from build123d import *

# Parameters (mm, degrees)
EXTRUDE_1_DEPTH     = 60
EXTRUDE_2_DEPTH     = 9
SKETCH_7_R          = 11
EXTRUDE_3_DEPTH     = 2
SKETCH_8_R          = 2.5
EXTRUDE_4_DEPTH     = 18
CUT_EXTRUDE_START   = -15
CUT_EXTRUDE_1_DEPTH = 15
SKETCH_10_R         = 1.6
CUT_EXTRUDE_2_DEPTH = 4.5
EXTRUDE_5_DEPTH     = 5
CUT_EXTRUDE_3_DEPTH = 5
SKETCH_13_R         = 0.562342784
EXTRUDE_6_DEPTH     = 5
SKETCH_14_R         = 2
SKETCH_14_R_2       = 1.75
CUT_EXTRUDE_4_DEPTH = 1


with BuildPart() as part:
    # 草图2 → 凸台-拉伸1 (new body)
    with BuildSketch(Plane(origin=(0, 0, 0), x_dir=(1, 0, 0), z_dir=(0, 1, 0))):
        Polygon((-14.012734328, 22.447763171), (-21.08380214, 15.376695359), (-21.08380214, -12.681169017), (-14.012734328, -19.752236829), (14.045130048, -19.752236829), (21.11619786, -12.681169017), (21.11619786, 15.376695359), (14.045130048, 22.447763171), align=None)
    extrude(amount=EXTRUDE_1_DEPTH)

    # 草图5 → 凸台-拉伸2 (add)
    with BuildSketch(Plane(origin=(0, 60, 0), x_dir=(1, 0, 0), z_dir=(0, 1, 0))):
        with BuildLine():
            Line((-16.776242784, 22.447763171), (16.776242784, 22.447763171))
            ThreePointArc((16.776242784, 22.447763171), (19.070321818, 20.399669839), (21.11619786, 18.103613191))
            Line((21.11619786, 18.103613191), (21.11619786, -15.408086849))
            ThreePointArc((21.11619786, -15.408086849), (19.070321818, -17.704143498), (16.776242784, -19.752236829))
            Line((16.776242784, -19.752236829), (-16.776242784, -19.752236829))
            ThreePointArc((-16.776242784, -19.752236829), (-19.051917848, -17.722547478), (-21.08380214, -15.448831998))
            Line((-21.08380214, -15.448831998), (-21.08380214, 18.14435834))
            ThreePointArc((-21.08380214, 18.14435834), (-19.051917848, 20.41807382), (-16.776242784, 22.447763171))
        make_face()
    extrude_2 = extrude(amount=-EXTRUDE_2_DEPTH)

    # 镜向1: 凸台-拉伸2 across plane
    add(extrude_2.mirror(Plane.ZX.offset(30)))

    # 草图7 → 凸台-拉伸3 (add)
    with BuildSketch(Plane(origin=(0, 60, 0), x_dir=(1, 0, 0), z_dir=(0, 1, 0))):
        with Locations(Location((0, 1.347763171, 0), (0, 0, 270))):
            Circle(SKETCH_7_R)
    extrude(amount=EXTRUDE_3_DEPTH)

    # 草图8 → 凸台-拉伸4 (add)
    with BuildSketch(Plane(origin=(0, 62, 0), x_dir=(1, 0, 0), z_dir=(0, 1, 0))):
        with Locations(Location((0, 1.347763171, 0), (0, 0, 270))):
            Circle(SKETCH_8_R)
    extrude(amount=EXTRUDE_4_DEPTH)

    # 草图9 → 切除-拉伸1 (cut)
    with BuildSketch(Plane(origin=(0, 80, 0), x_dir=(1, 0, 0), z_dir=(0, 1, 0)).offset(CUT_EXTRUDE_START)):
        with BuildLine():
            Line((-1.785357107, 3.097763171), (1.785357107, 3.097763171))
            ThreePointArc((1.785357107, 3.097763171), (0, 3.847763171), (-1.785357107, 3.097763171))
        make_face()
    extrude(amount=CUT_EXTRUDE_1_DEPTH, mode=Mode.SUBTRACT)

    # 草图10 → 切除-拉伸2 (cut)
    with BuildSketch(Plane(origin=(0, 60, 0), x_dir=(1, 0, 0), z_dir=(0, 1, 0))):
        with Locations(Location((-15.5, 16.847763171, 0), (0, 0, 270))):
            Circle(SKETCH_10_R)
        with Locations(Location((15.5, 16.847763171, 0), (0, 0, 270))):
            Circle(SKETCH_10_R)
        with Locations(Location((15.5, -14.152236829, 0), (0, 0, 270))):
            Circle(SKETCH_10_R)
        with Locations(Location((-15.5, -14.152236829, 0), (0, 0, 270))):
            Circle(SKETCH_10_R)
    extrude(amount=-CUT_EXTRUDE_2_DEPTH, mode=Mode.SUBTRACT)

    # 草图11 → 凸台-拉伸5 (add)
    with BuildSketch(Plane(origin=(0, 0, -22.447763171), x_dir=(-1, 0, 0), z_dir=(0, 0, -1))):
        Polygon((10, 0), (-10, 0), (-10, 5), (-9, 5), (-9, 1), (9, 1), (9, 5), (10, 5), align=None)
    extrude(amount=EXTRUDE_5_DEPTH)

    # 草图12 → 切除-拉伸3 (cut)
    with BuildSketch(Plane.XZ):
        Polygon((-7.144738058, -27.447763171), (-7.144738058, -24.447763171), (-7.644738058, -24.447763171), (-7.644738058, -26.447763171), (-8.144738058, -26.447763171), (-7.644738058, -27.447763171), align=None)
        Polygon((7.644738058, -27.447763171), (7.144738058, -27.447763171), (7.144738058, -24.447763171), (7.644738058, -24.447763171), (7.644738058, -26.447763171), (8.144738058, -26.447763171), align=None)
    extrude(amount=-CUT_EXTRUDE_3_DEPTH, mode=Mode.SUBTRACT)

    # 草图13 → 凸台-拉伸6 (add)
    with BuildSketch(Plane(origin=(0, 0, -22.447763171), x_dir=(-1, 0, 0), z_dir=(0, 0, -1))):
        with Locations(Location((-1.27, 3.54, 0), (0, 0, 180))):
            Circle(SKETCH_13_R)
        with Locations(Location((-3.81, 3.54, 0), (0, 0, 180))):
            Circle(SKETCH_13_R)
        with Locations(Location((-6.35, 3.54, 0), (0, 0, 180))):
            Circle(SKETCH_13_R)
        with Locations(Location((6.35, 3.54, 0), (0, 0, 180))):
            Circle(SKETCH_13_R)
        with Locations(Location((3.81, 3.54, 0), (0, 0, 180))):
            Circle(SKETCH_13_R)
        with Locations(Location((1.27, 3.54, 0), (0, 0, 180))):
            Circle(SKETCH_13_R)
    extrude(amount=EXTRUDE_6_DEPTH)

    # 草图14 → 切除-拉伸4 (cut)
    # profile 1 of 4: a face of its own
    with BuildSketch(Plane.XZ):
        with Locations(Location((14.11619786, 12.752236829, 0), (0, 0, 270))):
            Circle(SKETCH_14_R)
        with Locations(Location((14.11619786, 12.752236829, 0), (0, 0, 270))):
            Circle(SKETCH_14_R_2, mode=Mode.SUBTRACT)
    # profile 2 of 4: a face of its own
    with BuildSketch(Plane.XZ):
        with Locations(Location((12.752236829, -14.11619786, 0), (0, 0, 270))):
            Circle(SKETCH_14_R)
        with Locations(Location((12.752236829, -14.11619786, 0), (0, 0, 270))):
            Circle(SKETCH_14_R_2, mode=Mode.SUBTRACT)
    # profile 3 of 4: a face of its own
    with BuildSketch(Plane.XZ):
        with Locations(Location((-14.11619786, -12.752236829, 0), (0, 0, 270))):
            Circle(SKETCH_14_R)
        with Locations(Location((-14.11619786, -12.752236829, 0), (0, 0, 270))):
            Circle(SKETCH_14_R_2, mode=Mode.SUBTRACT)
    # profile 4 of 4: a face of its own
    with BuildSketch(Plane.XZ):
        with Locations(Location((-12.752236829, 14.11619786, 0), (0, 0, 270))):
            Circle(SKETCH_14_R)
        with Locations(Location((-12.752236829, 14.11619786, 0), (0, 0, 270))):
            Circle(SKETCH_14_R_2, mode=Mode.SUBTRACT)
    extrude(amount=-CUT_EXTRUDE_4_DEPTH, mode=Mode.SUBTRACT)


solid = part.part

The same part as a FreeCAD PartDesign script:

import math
import FreeCAD as App
import Part
import Sketcher
Q = App.Units.Quantity


def add_polygon(sketch, points):
    """Adds a closed chain of lines whose ends are joined by coincident constraints."""
    first, n = sketch.GeometryCount, len(points)
    for a, b in zip(points, points[1:] + points[:1]):
        sketch.addGeometry(Part.LineSegment(App.Vector(*a, 0), App.Vector(*b, 0)), False)
    for i in range(n):
        sketch.addConstraint(Sketcher.Constraint("Coincident", first + i, 2, first + (i + 1) % n, 1))

doc = App.newDocument("Part")
body = doc.addObject("PartDesign::Body", "Body")

sketch1 = doc.addObject("Sketcher::SketchObject", "Sketch")
body.addObject(sketch1)
sketch1.AttachmentSupport = (doc.XZ_Plane, [""])
sketch1.MapMode = "FlatFace"
add_polygon(sketch1, [(-14, -22), (-21, -15), (-21, 13), (-14, 20), (14, 20), (21, 13), (21, -15), (14, -22)])
sketch1.addConstraint(Sketcher.Constraint("Vertical", 1))
sketch1.addConstraint(Sketcher.Constraint("Horizontal", 3))
sketch1.addConstraint(Sketcher.Constraint("Vertical", 5))
sketch1.addConstraint(Sketcher.Constraint("Horizontal", 7))
sketch1.addConstraint(Sketcher.Constraint("Perpendicular", 0, 2))
sketch1.addConstraint(Sketcher.Constraint("Perpendicular", 2, 4))
sketch1.addConstraint(Sketcher.Constraint("Perpendicular", 4, 6))
sketch1.addConstraint(Sketcher.Constraint("Horizontal", 1, 2, 4, 2))
sketch1.addConstraint(Sketcher.Constraint("Horizontal", 0, 2, 5, 2))
sketch1.addConstraint(Sketcher.Constraint("Vertical", 3, 2, 6, 2))
sketch1.addConstraint(Sketcher.Constraint("Vertical", 2, 2, 7, 2))
sketch1.addConstraint(Sketcher.Constraint("Equal", 7, 1))
sketch1.addConstraint(Sketcher.Constraint("Distance", 0, Q("10 mm")))
sketch1.addConstraint(Sketcher.Constraint("DistanceX", 1, 2, 4, 2, Q("42.2 mm")))
sketch1.addConstraint(Sketcher.Constraint("DistanceY", -1, 1, 1, 2, Q("12.681169 mm")))
sketch1.addConstraint(Sketcher.Constraint("DistanceX", -1, 1, 3, 2, Q("14.04513 mm")))
pad1 = doc.addObject("PartDesign::Pad", "Pad")
body.addObject(pad1)
pad1.Profile = sketch1
pad1.Length = 60
pad1.Reversed = True

sketch2 = doc.addObject("Sketcher::SketchObject", "Sketch001")
body.addObject(sketch2)
sketch2.AttachmentSupport = (doc.XZ_Plane, [""])
sketch2.MapMode = "FlatFace"
sketch2.AttachmentOffset = App.Placement(App.Vector(0, 0, -60), App.Rotation())
sketch2.addGeometry(Part.LineSegment(App.Vector(17, -22, 0), App.Vector(-17, -22, 0)), False)
sketch2.addGeometry(Part.ArcOfCircle(Part.Circle(App.Vector(0, -1, 0), App.Vector(0, 0, 1), 27), math.radians(-141.46), math.radians(-128.49)), False)
sketch2.addGeometry(Part.LineSegment(App.Vector(-21, -18, 0), App.Vector(-21, 15, 0)), False)
sketch2.addGeometry(Part.ArcOfCircle(Part.Circle(App.Vector(0, -1, 0), App.Vector(0, 0, 1), 27), math.radians(128.49), math.radians(141.46)), False)
sketch2.addGeometry(Part.LineSegment(App.Vector(-17, 20, 0), App.Vector(17, 20, 0)), False)
sketch2.addGeometry(Part.ArcOfCircle(Part.Circle(App.Vector(0, -1, 0), App.Vector(0, 0, 1), 27), math.radians(38.43), math.radians(51.51)), False)
sketch2.addGeometry(Part.LineSegment(App.Vector(21, 15, 0), App.Vector(21, -18, 0)), False)
sketch2.addGeometry(Part.ArcOfCircle(Part.Circle(App.Vector(0, -1, 0), App.Vector(0, 0, 1), 27), math.radians(-51.51), math.radians(-38.43)), False)
sketch2.addConstraint(Sketcher.Constraint("Coincident", 0, 2, 1, 2))
sketch2.addConstraint(Sketcher.Constraint("Coincident", 1, 1, 2, 1))
sketch2.addConstraint(Sketcher.Constraint("Coincident", 2, 2, 3, 2))
sketch2.addConstraint(Sketcher.Constraint("Coincident", 3, 1, 4, 1))
sketch2.addConstraint(Sketcher.Constraint("Coincident", 4, 2, 5, 2))
sketch2.addConstraint(Sketcher.Constraint("Coincident", 5, 1, 6, 1))
sketch2.addConstraint(Sketcher.Constraint("Coincident", 6, 2, 7, 2))
sketch2.addConstraint(Sketcher.Constraint("Coincident", 7, 1, 0, 1))
sketch2.addConstraint(Sketcher.Constraint("Horizontal", 0))
sketch2.addConstraint(Sketcher.Constraint("Vertical", 2))
sketch2.addConstraint(Sketcher.Constraint("Horizontal", 4))
sketch2.addConstraint(Sketcher.Constraint("Vertical", 6))
sketch2.addConstraint(Sketcher.Constraint("Coincident", 3, 3, 1, 3))
sketch2.addConstraint(Sketcher.Constraint("Coincident", 5, 3, 1, 3))
sketch2.addConstraint(Sketcher.Constraint("Coincident", 7, 3, 1, 3))
sketch2.addConstraint(Sketcher.Constraint("Equal", 1, 3))
sketch2.addConstraint(Sketcher.Constraint("Equal", 3, 5))
sketch2.addConstraint(Sketcher.Constraint("Equal", 5, 7))
sketch2.addConstraint(Sketcher.Constraint("PointOnObject", 1, 3, -2))
sketch2.addConstraint(Sketcher.Constraint("Vertical", 0, 2, 3, 1))
sketch2.addConstraint(Sketcher.Constraint("DistanceY", 0, 2, 3, 3, Q("21.1 mm")))
sketch2.addConstraint(Sketcher.Constraint("Radius", 1, Q("26.956489 mm")))
sketch2.addConstraint(Sketcher.Constraint("DistanceY", 6, 2, 6, 1, Q("33.5117 mm")))
sketch2.addConstraint(Sketcher.Constraint("DistanceY", 2, 1, 2, 2, Q("33.59319 mm")))
sketch2.addConstraint(Sketcher.Constraint("DistanceY", 1, 1, -1, 1, Q("18.144358 mm")))
pad2 = doc.addObject("PartDesign::Pad", "Pad001")
body.addObject(pad2)
pad2.Profile = sketch2
pad2.Length = 9
doc.recompute()

datumplane = doc.addObject("PartDesign::Plane", "DatumPlane")
body.addObject(datumplane)
datumplane.AttachmentSupport = (doc.XZ_Plane, [""])
datumplane.MapMode = "FlatFace"
datumplane.AttachmentOffset = App.Placement(App.Vector(0, 0, -30), App.Rotation())
mirrored = doc.addObject("PartDesign::Mirrored", "Mirrored")
body.addObject(mirrored)
mirrored.Originals = [pad2]
mirrored.MirrorPlane = (datumplane, [""])
body.Tip = mirrored

sketch3 = doc.addObject("Sketcher::SketchObject", "Sketch002")
body.addObject(sketch3)
sketch3.AttachmentSupport = (doc.XZ_Plane, [""])
sketch3.MapMode = "FlatFace"
sketch3.AttachmentOffset = App.Placement(App.Vector(0, 0, -60), App.Rotation())
sketch3.addGeometry(Part.Circle(App.Vector(0, -1, 0), App.Vector(0, 0, 1), 11), False)
sketch3.addConstraint(Sketcher.Constraint("PointOnObject", 0, 3, -2))
sketch3.addConstraint(Sketcher.Constraint("Diameter", 0, Q("22 mm")))
sketch3.addConstraint(Sketcher.Constraint("DistanceY", 0, 3, -1, 1, Q("1.347763 mm")))
pad3 = doc.addObject("PartDesign::Pad", "Pad002")
body.addObject(pad3)
pad3.Profile = sketch3
pad3.Length = 2
pad3.Reversed = True

sketch4 = doc.addObject("Sketcher::SketchObject", "Sketch003")
body.addObject(sketch4)
sketch4.AttachmentSupport = (doc.XZ_Plane, [""])
sketch4.MapMode = "FlatFace"
sketch4.AttachmentOffset = App.Placement(App.Vector(0, 0, -62), App.Rotation())
sketch4.addGeometry(Part.Circle(App.Vector(0, -1.3, 0), App.Vector(0, 0, 1), 2.5), False)
sketch4.addConstraint(Sketcher.Constraint("PointOnObject", 0, 3, -2))
sketch4.addConstraint(Sketcher.Constraint("Diameter", 0, Q("5 mm")))
sketch4.addConstraint(Sketcher.Constraint("DistanceY", 0, 3, -1, 1, Q("1.347763 mm")))
pad4 = doc.addObject("PartDesign::Pad", "Pad003")
body.addObject(pad4)
pad4.Profile = sketch4
pad4.Length = 18
pad4.Reversed = True

sketch5 = doc.addObject("Sketcher::SketchObject", "Sketch004")
body.addObject(sketch5)
sketch5.AttachmentSupport = (doc.XZ_Plane, [""])
sketch5.MapMode = "FlatFace"
sketch5.AttachmentOffset = App.Placement(App.Vector(0, 0, -65), App.Rotation())
sketch5.addGeometry(Part.LineSegment(App.Vector(-1.8, -3.1, 0), App.Vector(1.8, -3.1, 0)), False)
sketch5.addGeometry(Part.ArcOfCircle(Part.Circle(App.Vector(0, -1.3, 0), App.Vector(0, 0, 1), 2.5), math.radians(-136), math.radians(-44)), False)
sketch5.addConstraint(Sketcher.Constraint("Coincident", 0, 1, 1, 1))
sketch5.addConstraint(Sketcher.Constraint("Coincident", 1, 2, 0, 2))
sketch5.addConstraint(Sketcher.Constraint("Horizontal", 0))
sketch5.addConstraint(Sketcher.Constraint("PointOnObject", 1, 3, -2))
sketch5.addConstraint(Sketcher.Constraint("Radius", 1, Q("2.5 mm")))
sketch5.addConstraint(Sketcher.Constraint("DistanceY", 0, 1, 1, 3, Q("1.75 mm")))
sketch5.addConstraint(Sketcher.Constraint("DistanceY", 1, 3, -1, 1, Q("1.347763 mm")))
pocket1 = doc.addObject("PartDesign::Pocket", "Pocket")
body.addObject(pocket1)
pocket1.Profile = sketch5
pocket1.Length = 15

sketch6 = doc.addObject("Sketcher::SketchObject", "Sketch005")
body.addObject(sketch6)
sketch6.AttachmentSupport = (doc.XZ_Plane, [""])
sketch6.MapMode = "FlatFace"
sketch6.AttachmentOffset = App.Placement(App.Vector(0, 0, -60), App.Rotation())
sketch6.addGeometry(Part.Circle(App.Vector(-15.5, -16.8, 0), App.Vector(0, 0, 1), 1.6), False)
sketch6.addGeometry(Part.Circle(App.Vector(15.5, -16.8, 0), App.Vector(0, 0, 1), 1.6), False)
sketch6.addGeometry(Part.Circle(App.Vector(15.5, 14.2, 0), App.Vector(0, 0, 1), 1.6), False)
sketch6.addGeometry(Part.Circle(App.Vector(-15.5, 14.2, 0), App.Vector(0, 0, 1), 1.6), False)
sketch6.addConstraint(Sketcher.Constraint("Equal", 0, 1))
sketch6.addConstraint(Sketcher.Constraint("Equal", 1, 2))
sketch6.addConstraint(Sketcher.Constraint("Equal", 2, 3))
sketch6.addConstraint(Sketcher.Constraint("Symmetric", 0, 3, 1, 3, -2))
sketch6.addConstraint(Sketcher.Constraint("Symmetric", 2, 3, 3, 3, -2))
sketch6.addConstraint(Sketcher.Constraint("Vertical", 1, 3, 2, 3))
sketch6.addConstraint(Sketcher.Constraint("Diameter", 0, Q("3.2 mm")))
sketch6.addConstraint(Sketcher.Constraint("DistanceX", 0, 3, 1, 3, Q("31 mm")))
sketch6.addConstraint(Sketcher.Constraint("DistanceY", 1, 3, 2, 3, Q("31 mm")))
sketch6.addConstraint(Sketcher.Constraint("DistanceY", 0, 3, -1, 1, Q("16.847763 mm")))
pocket2 = doc.addObject("PartDesign::Pocket", "Pocket001")
body.addObject(pocket2)
pocket2.Profile = sketch6
pocket2.Length = 4.5
pocket2.Reversed = True

sketch7 = doc.addObject("Sketcher::SketchObject", "Sketch006")
body.addObject(sketch7)
sketch7.AttachmentSupport = (doc.XY_Plane, [""])
sketch7.MapMode = "FlatFace"
sketch7.AttachmentOffset = App.Placement(App.Vector(0, 0, -22.447763), App.Rotation())
add_polygon(sketch7, [(10, 0), (-10, 0), (-10, 5), (-9, 5), (-9, 1), (9, 1), (9, 5), (10, 5)])
sketch7.addConstraint(Sketcher.Constraint("Horizontal", 0))
sketch7.addConstraint(Sketcher.Constraint("Vertical", 1))
sketch7.addConstraint(Sketcher.Constraint("Horizontal", 2))
sketch7.addConstraint(Sketcher.Constraint("Vertical", 3))
sketch7.addConstraint(Sketcher.Constraint("Horizontal", 4))
sketch7.addConstraint(Sketcher.Constraint("Vertical", 5))
sketch7.addConstraint(Sketcher.Constraint("Horizontal", 6))
sketch7.addConstraint(Sketcher.Constraint("Vertical", 7))
sketch7.addConstraint(Sketcher.Constraint("Symmetric", 0, 2, 7, 2, -1, 1))
sketch7.addConstraint(Sketcher.Constraint("Symmetric", 2, 2, 5, 2, -2))
sketch7.addConstraint(Sketcher.Constraint("DistanceX", 0, 2, 0, 1, Q("20 mm")))
sketch7.addConstraint(Sketcher.Constraint("DistanceX", 2, 1, 2, 2, Q("1 mm")))
sketch7.addConstraint(Sketcher.Constraint("DistanceY", 1, 1, 1, 2, Q("5 mm")))
sketch7.addConstraint(Sketcher.Constraint("DistanceY", 3, 2, 3, 1, Q("4 mm")))
pad5 = doc.addObject("PartDesign::Pad", "Pad004")
body.addObject(pad5)
pad5.Profile = sketch7
pad5.Length = 5
pad5.Reversed = True

sketch8 = doc.addObject("Sketcher::SketchObject", "Sketch007")
body.addObject(sketch8)
sketch8.AttachmentSupport = (doc.XZ_Plane, [""])
sketch8.MapMode = "FlatFace"
add_polygon(sketch8, [(-7.1, -27.4), (-7.1, -24.4), (-7.6, -24.4), (-7.6, -26.4), (-8.1, -26.4), (-7.6, -27.4)])
add_polygon(sketch8, [(7.1, -27.4), (7.6, -27.4), (8.1, -26.4), (7.6, -26.4), (7.6, -24.4), (7.1, -24.4)])
sketch8.addConstraint(Sketcher.Constraint("Vertical", 0))
sketch8.addConstraint(Sketcher.Constraint("Horizontal", 1))
sketch8.addConstraint(Sketcher.Constraint("Vertical", 2))
sketch8.addConstraint(Sketcher.Constraint("Horizontal", 3))
sketch8.addConstraint(Sketcher.Constraint("Horizontal", 5))
sketch8.addConstraint(Sketcher.Constraint("Horizontal", 6))
sketch8.addConstraint(Sketcher.Constraint("Horizontal", 8))
sketch8.addConstraint(Sketcher.Constraint("Vertical", 9))
sketch8.addConstraint(Sketcher.Constraint("Horizontal", 10))
sketch8.addConstraint(Sketcher.Constraint("Vertical", 11))
sketch8.addConstraint(Sketcher.Constraint("Symmetric", 4, 2, 6, 2, -2))
sketch8.addConstraint(Sketcher.Constraint("Symmetric", 3, 2, 7, 2, -2))
sketch8.addConstraint(Sketcher.Constraint("Symmetric", 1, 2, 9, 2, -2))
sketch8.addConstraint(Sketcher.Constraint("Vertical", 2, 2, 4, 2))
sketch8.addConstraint(Sketcher.Constraint("Equal", 1, 3))
sketch8.addConstraint(Sketcher.Constraint("Equal", 5, 6))
sketch8.addConstraint(Sketcher.Constraint("DistanceY", 0, 1, 0, 2, Q("3 mm")))
sketch8.addConstraint(Sketcher.Constraint("DistanceY", 2, 2, 2, 1, Q("2 mm")))
sketch8.addConstraint(Sketcher.Constraint("DistanceX", 1, 2, 1, 1, Q("0.5 mm")))
sketch8.addConstraint(Sketcher.Constraint("DistanceX", 0, 2, -1, 1, Q("7.144738 mm")))
sketch8.addConstraint(Sketcher.Constraint("DistanceY", 0, 2, -1, 1, Q("24.447763 mm")))
pocket3 = doc.addObject("PartDesign::Pocket", "Pocket002")
body.addObject(pocket3)
pocket3.Profile = sketch8
pocket3.Length = 5

sketch9 = doc.addObject("Sketcher::SketchObject", "Sketch008")
body.addObject(sketch9)
sketch9.AttachmentSupport = (doc.XY_Plane, [""])
sketch9.MapMode = "FlatFace"
sketch9.AttachmentOffset = App.Placement(App.Vector(0, 0, -22.447763), App.Rotation())
sketch9.addGeometry(Part.Circle(App.Vector(1.3, 3.5, 0), App.Vector(0, 0, 1), 0.6), False)
sketch9.addGeometry(Part.Circle(App.Vector(3.8, 3.5, 0), App.Vector(0, 0, 1), 0.6), False)
sketch9.addGeometry(Part.Circle(App.Vector(6.3, 3.5, 0), App.Vector(0, 0, 1), 0.6), False)
sketch9.addGeometry(Part.Circle(App.Vector(-6.3, 3.5, 0), App.Vector(0, 0, 1), 0.6), False)
sketch9.addGeometry(Part.Circle(App.Vector(-3.8, 3.5, 0), App.Vector(0, 0, 1), 0.6), False)
sketch9.addGeometry(Part.Circle(App.Vector(-1.3, 3.5, 0), App.Vector(0, 0, 1), 0.6), False)
sketch9.addConstraint(Sketcher.Constraint("Equal", 0, 1))
sketch9.addConstraint(Sketcher.Constraint("Equal", 1, 2))
sketch9.addConstraint(Sketcher.Constraint("Equal", 2, 3))
sketch9.addConstraint(Sketcher.Constraint("Equal", 3, 4))
sketch9.addConstraint(Sketcher.Constraint("Equal", 4, 5))
sketch9.addConstraint(Sketcher.Constraint("Symmetric", 2, 3, 3, 3, -2))
sketch9.addConstraint(Sketcher.Constraint("Symmetric", 1, 3, 4, 3, -2))
sketch9.addConstraint(Sketcher.Constraint("Symmetric", 0, 3, 5, 3, -2))
sketch9.addConstraint(Sketcher.Constraint("Horizontal", 0, 3, 1, 3))
sketch9.addConstraint(Sketcher.Constraint("Horizontal", 1, 3, 2, 3))
sketch9.addConstraint(Sketcher.Constraint("DistanceX", 3, 3, 2, 3, Q("12.7 mm")))
sketch9.addConstraint(Sketcher.Constraint("DistanceX", -1, 1, 0, 3, Q("1.27 mm")))
sketch9.addConstraint(Sketcher.Constraint("DistanceY", -1, 1, 0, 3, Q("3.54 mm")))
sketch9.addConstraint(Sketcher.Constraint("DistanceX", -1, 1, 1, 3, Q("3.81 mm")))
sketch9.addConstraint(Sketcher.Constraint("Diameter", 0, Q("1.124686 mm")))
pad6 = doc.addObject("PartDesign::Pad", "Pad005")
body.addObject(pad6)
pad6.Profile = sketch9
pad6.Length = 5
pad6.Reversed = True

sketch10 = doc.addObject("Sketcher::SketchObject", "Sketch009")
body.addObject(sketch10)
sketch10.AttachmentSupport = (doc.XZ_Plane, [""])
sketch10.MapMode = "FlatFace"
sketch10.addGeometry(Part.Circle(App.Vector(14.1, 12.8, 0), App.Vector(0, 0, 1), 2), False)
sketch10.addGeometry(Part.Circle(App.Vector(14.1, 12.8, 0), App.Vector(0, 0, 1), 1.8), False)
sketch10.addGeometry(Part.Circle(App.Vector(12.8, -14.1, 0), App.Vector(0, 0, 1), 2), False)
sketch10.addGeometry(Part.Circle(App.Vector(12.8, -14.1, 0), App.Vector(0, 0, 1), 1.8), False)
sketch10.addGeometry(Part.Circle(App.Vector(-14.1, -12.8, 0), App.Vector(0, 0, 1), 2), False)
sketch10.addGeometry(Part.Circle(App.Vector(-14.1, -12.8, 0), App.Vector(0, 0, 1), 1.8), False)
sketch10.addGeometry(Part.Circle(App.Vector(-12.8, 14.1, 0), App.Vector(0, 0, 1), 2), False)
sketch10.addGeometry(Part.Circle(App.Vector(-12.8, 14.1, 0), App.Vector(0, 0, 1), 1.8), False)
sketch10.addConstraint(Sketcher.Constraint("Coincident", 1, 3, 0, 3))
sketch10.addConstraint(Sketcher.Constraint("Coincident", 3, 3, 2, 3))
sketch10.addConstraint(Sketcher.Constraint("Coincident", 5, 3, 4, 3))
sketch10.addConstraint(Sketcher.Constraint("Coincident", 7, 3, 6, 3))
sketch10.addConstraint(Sketcher.Constraint("Equal", 0, 2))
sketch10.addConstraint(Sketcher.Constraint("Equal", 1, 3))
sketch10.addConstraint(Sketcher.Constraint("Equal", 2, 4))
sketch10.addConstraint(Sketcher.Constraint("Equal", 3, 5))
sketch10.addConstraint(Sketcher.Constraint("Equal", 4, 6))
sketch10.addConstraint(Sketcher.Constraint("Equal", 5, 7))
sketch10.addConstraint(Sketcher.Constraint("Symmetric", 0, 3, 4, 3, -1, 1))
sketch10.addConstraint(Sketcher.Constraint("Symmetric", 2, 3, 6, 3, -1, 1))
sketch10.addConstraint(Sketcher.Constraint("Diameter", 0, Q("4 mm")))
sketch10.addConstraint(Sketcher.Constraint("Diameter", 1, Q("3.5 mm")))
sketch10.addConstraint(Sketcher.Constraint("DistanceX", 2, 3, 0, 3, Q("1.363961 mm")))
sketch10.addConstraint(Sketcher.Constraint("DistanceY", 2, 3, 4, 3, Q("1.363961 mm")))
sketch10.addConstraint(Sketcher.Constraint("DistanceX", -1, 1, 0, 3, Q("14.116198 mm")))
sketch10.addConstraint(Sketcher.Constraint("DistanceY", -1, 1, 0, 3, Q("12.752237 mm")))
pocket4 = doc.addObject("PartDesign::Pocket", "Pocket003")
body.addObject(pocket4)
pocket4.Profile = sketch10
pocket4.Length = 1

doc.recompute()
